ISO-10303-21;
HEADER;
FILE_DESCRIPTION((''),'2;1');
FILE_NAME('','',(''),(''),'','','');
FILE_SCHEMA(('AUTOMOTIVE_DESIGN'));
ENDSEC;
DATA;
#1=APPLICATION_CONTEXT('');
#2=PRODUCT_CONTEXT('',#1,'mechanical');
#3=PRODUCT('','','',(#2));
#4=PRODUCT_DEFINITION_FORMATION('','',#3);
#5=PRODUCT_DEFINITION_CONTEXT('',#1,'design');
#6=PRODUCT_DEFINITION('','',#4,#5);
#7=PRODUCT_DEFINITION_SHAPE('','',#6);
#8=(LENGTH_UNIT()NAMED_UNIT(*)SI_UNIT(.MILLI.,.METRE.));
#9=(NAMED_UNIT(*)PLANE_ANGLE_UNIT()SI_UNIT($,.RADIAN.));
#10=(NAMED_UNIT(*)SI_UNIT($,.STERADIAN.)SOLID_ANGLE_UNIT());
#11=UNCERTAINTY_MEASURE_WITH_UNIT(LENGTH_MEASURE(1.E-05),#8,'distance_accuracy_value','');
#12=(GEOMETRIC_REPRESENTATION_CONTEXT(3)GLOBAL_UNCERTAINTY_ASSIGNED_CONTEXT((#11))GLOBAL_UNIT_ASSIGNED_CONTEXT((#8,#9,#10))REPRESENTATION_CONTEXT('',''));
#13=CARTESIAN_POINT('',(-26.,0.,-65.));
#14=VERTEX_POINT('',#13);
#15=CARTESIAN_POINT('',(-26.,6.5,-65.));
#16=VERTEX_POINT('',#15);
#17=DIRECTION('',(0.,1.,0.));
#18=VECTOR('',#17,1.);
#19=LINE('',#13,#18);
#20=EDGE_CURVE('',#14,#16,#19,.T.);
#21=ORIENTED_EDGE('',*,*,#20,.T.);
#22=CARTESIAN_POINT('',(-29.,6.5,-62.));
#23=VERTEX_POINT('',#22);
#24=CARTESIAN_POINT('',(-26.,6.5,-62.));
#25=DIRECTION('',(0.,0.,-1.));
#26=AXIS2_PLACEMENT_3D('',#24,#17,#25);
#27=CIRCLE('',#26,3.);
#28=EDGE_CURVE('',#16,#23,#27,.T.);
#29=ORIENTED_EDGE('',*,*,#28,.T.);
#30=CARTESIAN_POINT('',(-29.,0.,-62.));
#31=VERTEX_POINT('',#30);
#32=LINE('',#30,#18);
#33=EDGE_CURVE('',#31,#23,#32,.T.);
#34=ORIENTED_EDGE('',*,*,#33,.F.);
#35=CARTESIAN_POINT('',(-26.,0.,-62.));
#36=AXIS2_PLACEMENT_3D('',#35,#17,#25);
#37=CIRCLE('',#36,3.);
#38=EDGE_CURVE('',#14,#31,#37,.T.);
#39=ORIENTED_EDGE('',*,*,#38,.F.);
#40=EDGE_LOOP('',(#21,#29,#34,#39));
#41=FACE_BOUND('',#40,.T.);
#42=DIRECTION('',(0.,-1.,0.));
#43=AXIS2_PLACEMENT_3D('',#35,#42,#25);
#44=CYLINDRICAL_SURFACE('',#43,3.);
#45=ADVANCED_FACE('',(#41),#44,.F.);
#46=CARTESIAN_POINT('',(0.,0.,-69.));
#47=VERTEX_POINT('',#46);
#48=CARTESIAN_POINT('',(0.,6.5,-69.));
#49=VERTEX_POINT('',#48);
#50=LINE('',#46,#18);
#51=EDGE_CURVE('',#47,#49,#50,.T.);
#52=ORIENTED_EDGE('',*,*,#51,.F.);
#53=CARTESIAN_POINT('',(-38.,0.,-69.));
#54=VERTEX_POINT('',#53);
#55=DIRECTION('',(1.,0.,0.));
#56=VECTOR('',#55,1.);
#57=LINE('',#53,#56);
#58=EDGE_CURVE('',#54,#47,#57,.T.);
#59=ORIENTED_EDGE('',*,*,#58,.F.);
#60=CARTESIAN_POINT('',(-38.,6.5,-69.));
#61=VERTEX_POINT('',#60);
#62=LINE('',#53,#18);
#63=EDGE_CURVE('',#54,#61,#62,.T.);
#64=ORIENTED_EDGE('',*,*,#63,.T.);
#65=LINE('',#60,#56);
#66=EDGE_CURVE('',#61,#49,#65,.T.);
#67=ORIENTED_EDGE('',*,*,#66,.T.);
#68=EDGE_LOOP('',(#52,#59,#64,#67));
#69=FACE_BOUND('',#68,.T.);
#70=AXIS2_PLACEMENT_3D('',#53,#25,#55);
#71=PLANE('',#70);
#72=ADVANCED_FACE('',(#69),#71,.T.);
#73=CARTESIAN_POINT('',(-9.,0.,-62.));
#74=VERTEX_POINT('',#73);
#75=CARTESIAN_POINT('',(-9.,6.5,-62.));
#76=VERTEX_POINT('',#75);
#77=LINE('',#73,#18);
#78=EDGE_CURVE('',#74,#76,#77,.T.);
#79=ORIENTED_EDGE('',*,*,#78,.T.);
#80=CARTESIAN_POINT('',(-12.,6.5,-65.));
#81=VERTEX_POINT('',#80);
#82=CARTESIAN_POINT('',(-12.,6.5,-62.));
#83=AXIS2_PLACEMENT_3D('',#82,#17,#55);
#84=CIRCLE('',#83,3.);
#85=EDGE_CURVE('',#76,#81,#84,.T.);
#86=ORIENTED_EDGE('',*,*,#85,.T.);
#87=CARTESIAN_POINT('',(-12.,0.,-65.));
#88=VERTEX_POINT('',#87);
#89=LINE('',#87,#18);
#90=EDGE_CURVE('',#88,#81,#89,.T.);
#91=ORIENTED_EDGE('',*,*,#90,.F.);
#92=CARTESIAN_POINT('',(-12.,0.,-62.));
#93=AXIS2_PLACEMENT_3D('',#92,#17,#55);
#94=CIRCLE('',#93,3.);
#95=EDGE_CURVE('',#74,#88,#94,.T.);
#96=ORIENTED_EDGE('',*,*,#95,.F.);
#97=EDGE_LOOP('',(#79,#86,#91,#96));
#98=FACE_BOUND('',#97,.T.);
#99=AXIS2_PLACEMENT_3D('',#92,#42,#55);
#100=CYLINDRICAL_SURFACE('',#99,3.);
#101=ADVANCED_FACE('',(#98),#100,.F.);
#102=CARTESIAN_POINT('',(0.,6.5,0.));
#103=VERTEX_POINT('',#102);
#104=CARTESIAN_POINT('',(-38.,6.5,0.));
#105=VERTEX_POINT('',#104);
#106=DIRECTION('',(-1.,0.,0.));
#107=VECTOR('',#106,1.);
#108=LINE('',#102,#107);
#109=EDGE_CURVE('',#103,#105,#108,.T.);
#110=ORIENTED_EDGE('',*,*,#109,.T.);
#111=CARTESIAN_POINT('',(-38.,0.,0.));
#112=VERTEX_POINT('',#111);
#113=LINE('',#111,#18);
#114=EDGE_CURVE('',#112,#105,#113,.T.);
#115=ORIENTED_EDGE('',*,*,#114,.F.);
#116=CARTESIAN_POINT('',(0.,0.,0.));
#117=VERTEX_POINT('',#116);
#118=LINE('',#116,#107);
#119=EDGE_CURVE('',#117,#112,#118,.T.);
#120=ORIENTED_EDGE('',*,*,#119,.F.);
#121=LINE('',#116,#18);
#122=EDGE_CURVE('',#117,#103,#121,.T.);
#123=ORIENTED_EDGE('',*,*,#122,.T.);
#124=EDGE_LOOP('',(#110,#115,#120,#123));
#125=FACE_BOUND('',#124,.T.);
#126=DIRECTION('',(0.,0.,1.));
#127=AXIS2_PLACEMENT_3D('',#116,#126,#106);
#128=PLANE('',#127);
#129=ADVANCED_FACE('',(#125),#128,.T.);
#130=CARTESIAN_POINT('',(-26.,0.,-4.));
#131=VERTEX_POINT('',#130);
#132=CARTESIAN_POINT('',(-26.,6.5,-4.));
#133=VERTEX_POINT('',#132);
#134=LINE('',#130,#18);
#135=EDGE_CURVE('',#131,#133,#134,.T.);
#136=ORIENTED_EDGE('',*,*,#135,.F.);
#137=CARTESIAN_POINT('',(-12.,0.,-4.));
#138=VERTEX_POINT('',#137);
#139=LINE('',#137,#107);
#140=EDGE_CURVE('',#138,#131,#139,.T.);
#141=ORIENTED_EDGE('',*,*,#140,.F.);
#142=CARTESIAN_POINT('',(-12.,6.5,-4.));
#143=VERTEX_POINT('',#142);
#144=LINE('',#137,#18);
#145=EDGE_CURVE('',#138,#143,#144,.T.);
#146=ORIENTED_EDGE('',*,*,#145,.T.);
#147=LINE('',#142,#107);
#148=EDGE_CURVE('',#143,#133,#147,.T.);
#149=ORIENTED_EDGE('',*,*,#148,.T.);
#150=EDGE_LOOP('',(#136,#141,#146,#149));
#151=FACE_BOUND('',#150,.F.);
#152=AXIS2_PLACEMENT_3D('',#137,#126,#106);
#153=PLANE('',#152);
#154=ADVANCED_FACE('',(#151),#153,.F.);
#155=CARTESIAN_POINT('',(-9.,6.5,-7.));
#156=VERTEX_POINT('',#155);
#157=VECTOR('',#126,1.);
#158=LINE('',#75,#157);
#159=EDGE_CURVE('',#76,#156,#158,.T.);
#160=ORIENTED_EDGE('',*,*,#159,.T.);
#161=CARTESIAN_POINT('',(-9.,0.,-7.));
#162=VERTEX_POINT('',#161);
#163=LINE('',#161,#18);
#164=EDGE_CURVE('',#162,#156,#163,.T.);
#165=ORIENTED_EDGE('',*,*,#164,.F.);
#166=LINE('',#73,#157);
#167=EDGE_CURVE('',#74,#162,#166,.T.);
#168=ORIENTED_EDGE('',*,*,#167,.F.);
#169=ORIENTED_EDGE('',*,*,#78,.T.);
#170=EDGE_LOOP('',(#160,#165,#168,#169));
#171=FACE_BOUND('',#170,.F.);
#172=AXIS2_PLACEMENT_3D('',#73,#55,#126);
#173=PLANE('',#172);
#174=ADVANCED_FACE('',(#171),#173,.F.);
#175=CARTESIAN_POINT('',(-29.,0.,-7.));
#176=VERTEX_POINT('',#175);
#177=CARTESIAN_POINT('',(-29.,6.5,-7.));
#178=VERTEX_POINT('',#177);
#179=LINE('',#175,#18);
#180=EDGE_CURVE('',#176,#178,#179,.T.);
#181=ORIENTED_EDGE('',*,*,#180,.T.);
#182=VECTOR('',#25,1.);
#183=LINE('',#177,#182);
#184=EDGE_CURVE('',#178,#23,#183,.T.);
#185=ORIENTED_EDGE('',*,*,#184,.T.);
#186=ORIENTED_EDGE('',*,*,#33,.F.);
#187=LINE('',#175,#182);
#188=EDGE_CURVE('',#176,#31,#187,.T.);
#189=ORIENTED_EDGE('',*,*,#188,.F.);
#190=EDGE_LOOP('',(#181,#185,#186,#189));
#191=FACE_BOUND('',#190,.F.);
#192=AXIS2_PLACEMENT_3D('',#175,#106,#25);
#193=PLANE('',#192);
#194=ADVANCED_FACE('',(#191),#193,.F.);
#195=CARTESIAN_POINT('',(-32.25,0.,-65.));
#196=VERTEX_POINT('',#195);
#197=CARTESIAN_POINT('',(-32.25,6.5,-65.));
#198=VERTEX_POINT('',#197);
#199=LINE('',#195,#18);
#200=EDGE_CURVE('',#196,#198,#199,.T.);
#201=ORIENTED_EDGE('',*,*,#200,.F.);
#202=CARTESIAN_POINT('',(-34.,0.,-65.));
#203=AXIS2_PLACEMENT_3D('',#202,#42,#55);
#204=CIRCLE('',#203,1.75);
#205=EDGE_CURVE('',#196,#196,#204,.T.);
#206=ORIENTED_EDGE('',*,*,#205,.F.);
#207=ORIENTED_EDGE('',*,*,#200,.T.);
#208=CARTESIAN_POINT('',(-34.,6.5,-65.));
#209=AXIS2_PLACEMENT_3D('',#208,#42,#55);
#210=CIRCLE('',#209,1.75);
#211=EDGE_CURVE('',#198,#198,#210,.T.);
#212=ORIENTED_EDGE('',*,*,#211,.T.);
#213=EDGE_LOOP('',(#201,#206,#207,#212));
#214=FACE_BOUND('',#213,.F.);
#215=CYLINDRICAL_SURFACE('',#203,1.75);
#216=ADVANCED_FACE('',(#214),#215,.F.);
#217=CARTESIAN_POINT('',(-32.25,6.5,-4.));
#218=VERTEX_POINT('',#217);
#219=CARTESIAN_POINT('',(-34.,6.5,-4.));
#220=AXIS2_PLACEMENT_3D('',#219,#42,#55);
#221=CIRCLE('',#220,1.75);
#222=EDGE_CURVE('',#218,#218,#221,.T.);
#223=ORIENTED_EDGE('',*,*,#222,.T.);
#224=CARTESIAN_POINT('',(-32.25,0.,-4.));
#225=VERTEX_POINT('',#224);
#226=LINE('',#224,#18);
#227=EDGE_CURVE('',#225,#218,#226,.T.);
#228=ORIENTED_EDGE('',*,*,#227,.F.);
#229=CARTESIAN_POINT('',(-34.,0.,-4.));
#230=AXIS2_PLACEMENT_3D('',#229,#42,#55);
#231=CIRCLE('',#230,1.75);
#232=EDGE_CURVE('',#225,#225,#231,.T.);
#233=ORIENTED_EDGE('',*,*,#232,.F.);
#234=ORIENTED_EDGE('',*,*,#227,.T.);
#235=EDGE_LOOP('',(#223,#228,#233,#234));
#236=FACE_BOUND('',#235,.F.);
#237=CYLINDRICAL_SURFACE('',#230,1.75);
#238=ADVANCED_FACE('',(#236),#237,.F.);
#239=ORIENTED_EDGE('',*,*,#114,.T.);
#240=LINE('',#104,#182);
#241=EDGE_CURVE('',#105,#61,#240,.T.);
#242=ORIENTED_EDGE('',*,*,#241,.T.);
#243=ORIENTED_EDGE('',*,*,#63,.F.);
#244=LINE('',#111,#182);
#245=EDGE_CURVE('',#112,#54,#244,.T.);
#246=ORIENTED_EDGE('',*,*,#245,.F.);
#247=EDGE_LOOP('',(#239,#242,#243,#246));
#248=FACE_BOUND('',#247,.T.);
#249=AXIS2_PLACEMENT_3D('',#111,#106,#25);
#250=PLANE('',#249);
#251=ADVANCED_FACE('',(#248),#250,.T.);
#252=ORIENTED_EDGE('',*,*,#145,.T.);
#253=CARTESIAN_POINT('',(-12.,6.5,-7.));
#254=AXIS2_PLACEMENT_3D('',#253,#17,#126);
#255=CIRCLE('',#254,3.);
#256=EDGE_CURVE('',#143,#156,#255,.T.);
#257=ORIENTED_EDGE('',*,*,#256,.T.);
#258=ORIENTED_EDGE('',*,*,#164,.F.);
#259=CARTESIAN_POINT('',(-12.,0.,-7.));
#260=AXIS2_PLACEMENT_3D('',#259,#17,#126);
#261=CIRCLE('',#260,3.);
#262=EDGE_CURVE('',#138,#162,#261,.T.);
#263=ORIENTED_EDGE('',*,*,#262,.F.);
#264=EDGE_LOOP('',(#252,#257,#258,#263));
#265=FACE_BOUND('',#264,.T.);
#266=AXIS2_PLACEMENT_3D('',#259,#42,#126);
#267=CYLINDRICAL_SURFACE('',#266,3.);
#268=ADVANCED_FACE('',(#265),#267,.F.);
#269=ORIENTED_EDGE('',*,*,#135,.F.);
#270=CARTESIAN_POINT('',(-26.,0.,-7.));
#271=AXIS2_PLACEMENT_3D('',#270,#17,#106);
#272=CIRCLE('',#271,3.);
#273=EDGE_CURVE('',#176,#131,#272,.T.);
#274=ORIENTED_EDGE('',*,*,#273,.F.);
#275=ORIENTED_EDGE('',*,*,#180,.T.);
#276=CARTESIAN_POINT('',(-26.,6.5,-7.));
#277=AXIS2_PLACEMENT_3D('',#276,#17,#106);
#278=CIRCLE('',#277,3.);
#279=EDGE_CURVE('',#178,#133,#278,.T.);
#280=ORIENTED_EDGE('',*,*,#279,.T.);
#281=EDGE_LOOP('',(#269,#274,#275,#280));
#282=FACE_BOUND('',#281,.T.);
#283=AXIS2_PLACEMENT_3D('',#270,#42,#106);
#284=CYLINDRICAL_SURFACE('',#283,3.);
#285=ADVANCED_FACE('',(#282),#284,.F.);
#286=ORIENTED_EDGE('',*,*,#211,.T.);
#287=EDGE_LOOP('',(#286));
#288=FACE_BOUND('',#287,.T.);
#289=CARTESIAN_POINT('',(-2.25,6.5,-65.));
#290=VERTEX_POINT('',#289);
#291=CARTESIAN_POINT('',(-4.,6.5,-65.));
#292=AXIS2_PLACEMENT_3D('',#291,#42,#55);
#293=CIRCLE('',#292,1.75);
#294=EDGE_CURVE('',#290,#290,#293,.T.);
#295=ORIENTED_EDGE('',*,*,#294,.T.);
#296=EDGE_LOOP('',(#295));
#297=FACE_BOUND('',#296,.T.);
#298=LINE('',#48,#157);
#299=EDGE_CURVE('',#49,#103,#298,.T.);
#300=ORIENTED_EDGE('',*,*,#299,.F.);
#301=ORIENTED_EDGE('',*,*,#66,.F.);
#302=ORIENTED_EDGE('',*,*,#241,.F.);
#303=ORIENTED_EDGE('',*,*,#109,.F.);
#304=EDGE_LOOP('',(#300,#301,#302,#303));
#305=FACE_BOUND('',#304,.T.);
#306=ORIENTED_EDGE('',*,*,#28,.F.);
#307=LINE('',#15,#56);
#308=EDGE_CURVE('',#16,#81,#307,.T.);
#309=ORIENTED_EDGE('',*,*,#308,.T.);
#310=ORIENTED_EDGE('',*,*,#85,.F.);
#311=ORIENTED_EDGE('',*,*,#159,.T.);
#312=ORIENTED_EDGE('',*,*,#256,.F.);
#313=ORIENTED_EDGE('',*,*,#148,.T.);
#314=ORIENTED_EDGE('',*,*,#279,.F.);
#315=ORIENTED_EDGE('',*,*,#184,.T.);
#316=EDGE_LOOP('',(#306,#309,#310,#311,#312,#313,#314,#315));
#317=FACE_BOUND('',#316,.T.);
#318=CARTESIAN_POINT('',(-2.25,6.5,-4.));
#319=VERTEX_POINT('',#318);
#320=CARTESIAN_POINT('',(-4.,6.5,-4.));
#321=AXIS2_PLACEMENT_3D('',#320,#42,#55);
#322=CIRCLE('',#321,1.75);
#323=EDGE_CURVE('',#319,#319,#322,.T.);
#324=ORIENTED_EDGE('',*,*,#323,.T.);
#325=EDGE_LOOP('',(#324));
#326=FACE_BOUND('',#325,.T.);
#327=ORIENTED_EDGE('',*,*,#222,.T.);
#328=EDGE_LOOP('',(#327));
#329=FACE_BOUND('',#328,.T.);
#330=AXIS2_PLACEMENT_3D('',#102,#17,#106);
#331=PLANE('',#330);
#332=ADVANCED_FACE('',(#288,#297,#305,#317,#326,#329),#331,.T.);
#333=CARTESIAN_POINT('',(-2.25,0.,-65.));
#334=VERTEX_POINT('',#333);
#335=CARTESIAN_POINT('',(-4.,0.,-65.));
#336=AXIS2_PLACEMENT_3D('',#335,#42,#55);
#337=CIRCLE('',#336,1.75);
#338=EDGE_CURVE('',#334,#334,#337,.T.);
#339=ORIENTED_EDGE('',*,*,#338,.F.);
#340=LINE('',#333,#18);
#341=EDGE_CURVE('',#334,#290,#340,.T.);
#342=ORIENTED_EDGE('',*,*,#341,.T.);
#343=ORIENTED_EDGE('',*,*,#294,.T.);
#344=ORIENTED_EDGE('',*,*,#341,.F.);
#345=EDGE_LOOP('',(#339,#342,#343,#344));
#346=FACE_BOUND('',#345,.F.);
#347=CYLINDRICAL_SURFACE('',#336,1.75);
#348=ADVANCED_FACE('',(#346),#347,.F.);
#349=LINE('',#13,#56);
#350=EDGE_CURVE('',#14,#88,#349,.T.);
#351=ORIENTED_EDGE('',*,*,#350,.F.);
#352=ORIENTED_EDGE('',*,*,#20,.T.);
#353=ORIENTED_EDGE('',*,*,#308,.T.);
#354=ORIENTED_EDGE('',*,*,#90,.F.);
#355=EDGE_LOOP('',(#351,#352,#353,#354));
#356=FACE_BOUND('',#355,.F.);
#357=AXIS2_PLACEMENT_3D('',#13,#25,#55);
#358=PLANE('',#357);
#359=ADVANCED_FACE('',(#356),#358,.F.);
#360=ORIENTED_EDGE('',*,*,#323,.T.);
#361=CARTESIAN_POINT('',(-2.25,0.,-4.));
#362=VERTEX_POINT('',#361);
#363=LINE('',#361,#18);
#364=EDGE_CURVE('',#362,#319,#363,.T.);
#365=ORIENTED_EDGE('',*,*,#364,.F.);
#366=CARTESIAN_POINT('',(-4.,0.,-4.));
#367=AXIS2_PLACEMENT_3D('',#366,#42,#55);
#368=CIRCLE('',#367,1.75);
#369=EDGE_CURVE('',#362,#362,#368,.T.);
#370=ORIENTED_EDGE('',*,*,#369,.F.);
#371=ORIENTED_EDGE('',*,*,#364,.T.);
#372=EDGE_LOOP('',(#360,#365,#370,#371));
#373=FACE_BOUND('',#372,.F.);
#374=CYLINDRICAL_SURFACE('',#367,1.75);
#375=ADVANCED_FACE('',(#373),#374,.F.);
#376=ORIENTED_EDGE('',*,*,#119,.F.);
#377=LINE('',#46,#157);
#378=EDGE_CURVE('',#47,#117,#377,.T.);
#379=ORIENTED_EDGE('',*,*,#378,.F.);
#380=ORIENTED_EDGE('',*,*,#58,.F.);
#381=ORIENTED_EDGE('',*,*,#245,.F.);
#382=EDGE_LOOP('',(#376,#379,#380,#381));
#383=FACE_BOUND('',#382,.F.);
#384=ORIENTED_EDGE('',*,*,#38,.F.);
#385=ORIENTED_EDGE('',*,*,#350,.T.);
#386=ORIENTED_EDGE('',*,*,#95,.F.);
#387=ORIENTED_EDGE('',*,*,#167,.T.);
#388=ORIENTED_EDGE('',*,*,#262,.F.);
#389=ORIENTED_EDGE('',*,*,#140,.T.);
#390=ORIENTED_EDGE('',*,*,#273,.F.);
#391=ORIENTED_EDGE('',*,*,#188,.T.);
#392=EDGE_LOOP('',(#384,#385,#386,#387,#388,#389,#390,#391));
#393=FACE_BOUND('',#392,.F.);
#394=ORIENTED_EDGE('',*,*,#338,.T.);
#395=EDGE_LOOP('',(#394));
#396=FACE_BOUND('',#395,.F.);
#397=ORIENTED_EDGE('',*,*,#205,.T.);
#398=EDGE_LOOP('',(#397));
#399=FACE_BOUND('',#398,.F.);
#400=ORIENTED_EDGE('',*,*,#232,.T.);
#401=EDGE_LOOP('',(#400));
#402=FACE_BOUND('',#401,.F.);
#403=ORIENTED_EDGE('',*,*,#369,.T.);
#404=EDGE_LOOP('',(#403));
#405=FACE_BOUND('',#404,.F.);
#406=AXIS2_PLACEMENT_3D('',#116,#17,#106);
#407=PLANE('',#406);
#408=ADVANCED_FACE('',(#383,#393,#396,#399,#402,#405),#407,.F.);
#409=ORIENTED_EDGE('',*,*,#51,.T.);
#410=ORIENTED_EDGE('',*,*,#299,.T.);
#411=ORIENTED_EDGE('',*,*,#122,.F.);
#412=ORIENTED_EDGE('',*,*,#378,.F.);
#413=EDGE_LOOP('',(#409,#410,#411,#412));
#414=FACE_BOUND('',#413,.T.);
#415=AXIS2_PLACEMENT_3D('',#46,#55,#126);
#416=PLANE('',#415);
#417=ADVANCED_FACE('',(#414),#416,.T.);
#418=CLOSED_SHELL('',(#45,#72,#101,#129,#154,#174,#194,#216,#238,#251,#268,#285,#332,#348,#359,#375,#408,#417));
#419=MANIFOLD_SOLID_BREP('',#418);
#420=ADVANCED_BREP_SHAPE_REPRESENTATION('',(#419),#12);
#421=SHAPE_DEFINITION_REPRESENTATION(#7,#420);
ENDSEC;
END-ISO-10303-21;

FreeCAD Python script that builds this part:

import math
import FreeCAD as App
import Part
import Sketcher
from FreeCAD import Vector

doc = App.newDocument("Part")
body = doc.addObject("PartDesign::Body", "Body")

sketch1 = doc.addObject("Sketcher::SketchObject", "Sketch")
body.addObject(sketch1)
sketch1.AttachmentSupport = (doc.XZ_Plane, [""])
sketch1.MapMode = "FlatFace"
sketch1.addGeometry([
    Part.LineSegment(Vector(-38, 0, 0), Vector(0, 0, 0)),
    Part.LineSegment(Vector(0, 0, 0), Vector(0, -69, 0)),
    Part.LineSegment(Vector(0, -69, 0), Vector(-38, -69, 0)),
    Part.LineSegment(Vector(-38, -69, 0), Vector(-38, 0, 0)),
    Part.ArcOfCircle(Part.Circle(Vector(-12, -7, 0), Vector(0, 0, 1), 3), math.radians(0), math.radians(90)),
    Part.LineSegment(Vector(-12, -4, 0), Vector(-26, -4, 0)),
    Part.ArcOfCircle(Part.Circle(Vector(-26, -7, 0), Vector(0, 0, 1), 3), math.radians(90), math.radians(180)),
    Part.LineSegment(Vector(-29, -7, 0), Vector(-29, -62, 0)),
    Part.ArcOfCircle(Part.Circle(Vector(-26, -62, 0), Vector(0, 0, 1), 3), math.radians(180), math.radians(270)),
    Part.LineSegment(Vector(-26, -65, 0), Vector(-12, -65, 0)),
    Part.ArcOfCircle(Part.Circle(Vector(-12, -62, 0), Vector(0, 0, 1), 3), math.radians(-90), math.radians(0)),
    Part.LineSegment(Vector(-9, -62, 0), Vector(-9, -7, 0)),
], False)
sketch1.addConstraint([
    Sketcher.Constraint("Coincident", 0, 2, 1, 1),
    Sketcher.Constraint("Coincident", 1, 2, 2, 1),
    Sketcher.Constraint("Coincident", 2, 2, 3, 1),
    Sketcher.Constraint("Coincident", 3, 2, 0, 1),
    Sketcher.Constraint("Tangent", 4, 2, 5, 1),
    Sketcher.Constraint("Tangent", 5, 2, 6, 1),
    Sketcher.Constraint("Tangent", 6, 2, 7, 1),
    Sketcher.Constraint("Tangent", 7, 2, 8, 1),
    Sketcher.Constraint("Tangent", 8, 2, 9, 1),
    Sketcher.Constraint("Tangent", 9, 2, 10, 1),
    Sketcher.Constraint("Tangent", 10, 2, 11, 1),
    Sketcher.Constraint("Tangent", 11, 2, 4, 1),
    Sketcher.Constraint("Horizontal", 0),
    Sketcher.Constraint("Vertical", 1),
    Sketcher.Constraint("Horizontal", 2),
    Sketcher.Constraint("Vertical", 3),
    Sketcher.Constraint("Horizontal", 5),
    Sketcher.Constraint("Vertical", 7),
    Sketcher.Constraint("Horizontal", 9),
    Sketcher.Constraint("Vertical", 11),
    Sketcher.Constraint("Coincident", 0, 2, -1, 1),
    Sketcher.Constraint("Equal", 4, 6),
    Sketcher.Constraint("Equal", 6, 8),
    Sketcher.Constraint("Equal", 8, 10),
    Sketcher.Constraint("Radius", 4, 3.0),
    Sketcher.Constraint("DistanceX", 0, 1, 0, 2, 38.0),
    Sketcher.Constraint("DistanceY", 1, 2, 1, 1, 69.0),
    Sketcher.Constraint("DistanceY", 4, 2, -1, 1, 4.0),
    Sketcher.Constraint("DistanceX", 10, 2, -1, 1, 9.0),
    Sketcher.Constraint("DistanceX", 3, 2, 6, 2, 9.0),
    Sketcher.Constraint("DistanceY", 2, 2, 8, 2, 4.0),
])
pad1 = doc.addObject("PartDesign::Pad", "Pad")
body.addObject(pad1)
pad1.Profile = sketch1
pad1.Length = 6.5
pad1.Reversed = True

sketch2 = doc.addObject("Sketcher::SketchObject", "Sketch001")
body.addObject(sketch2)
sketch2.AttachmentSupport = (doc.XZ_Plane, [""])
sketch2.MapMode = "FlatFace"
sketch2.addGeometry([
    Part.Circle(Vector(-34, -4, 0), Vector(0, 0, 1), 1.75),
    Part.Circle(Vector(-4, -4, 0), Vector(0, 0, 1), 1.75),
    Part.Circle(Vector(-4, -65, 0), Vector(0, 0, 1), 1.75),
    Part.Circle(Vector(-34, -65, 0), Vector(0, 0, 1), 1.75),
], False)
sketch2.addConstraint([
    Sketcher.Constraint("Equal", 0, 1),
    Sketcher.Constraint("Equal", 1, 2),
    Sketcher.Constraint("Equal", 2, 3),
    Sketcher.Constraint("Horizontal", 0, 3, 1, 3),
    Sketcher.Constraint("Horizontal", 2, 3, 3, 3),
    Sketcher.Constraint("Vertical", 1, 3, 2, 3),
    Sketcher.Constraint("Vertical", 0, 3, 3, 3),
    Sketcher.Constraint("Diameter", 0, 3.5),
    Sketcher.Constraint("DistanceY", 0, 3, -1, 1, 4.0),
    Sketcher.Constraint("DistanceX", 1, 3, -1, 1, 4.0),
    Sketcher.Constraint("DistanceX", 0, 3, -1, 1, 34.0),
    Sketcher.Constraint("DistanceY", 2, 3, -1, 1, 65.0),
])
pocket1 = doc.addObject("PartDesign::Pocket", "Pocket")
body.addObject(pocket1)
pocket1.Profile = sketch2
pocket1.Length = 6.5

doc.recompute()
